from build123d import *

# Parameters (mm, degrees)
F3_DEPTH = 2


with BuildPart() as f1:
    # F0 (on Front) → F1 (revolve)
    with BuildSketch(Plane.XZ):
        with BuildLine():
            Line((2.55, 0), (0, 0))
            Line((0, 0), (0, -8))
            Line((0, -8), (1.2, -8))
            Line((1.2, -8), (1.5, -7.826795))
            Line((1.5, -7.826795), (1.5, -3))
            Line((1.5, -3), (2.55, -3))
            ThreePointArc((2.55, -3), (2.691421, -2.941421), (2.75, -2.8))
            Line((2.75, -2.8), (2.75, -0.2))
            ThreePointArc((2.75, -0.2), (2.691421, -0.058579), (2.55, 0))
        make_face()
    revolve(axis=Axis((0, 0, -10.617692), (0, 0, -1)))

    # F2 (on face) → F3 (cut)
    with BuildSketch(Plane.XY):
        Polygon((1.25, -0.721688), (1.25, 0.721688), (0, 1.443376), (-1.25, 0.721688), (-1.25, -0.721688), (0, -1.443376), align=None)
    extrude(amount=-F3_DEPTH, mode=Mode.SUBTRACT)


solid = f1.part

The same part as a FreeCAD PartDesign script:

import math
import FreeCAD as App
import Part
import Sketcher
Q = App.Units.Quantity


def add_polygon(sketch, points):
    """Adds a closed chain of lines whose ends are joined by coincident constraints."""
    first, n = sketch.GeometryCount, len(points)
    for a, b in zip(points, points[1:] + points[:1]):
        sketch.addGeometry(Part.LineSegment(App.Vector(*a, 0), App.Vector(*b, 0)), False)
    for i in range(n):
        sketch.addConstraint(Sketcher.Constraint("Coincident", first + i, 2, first + (i + 1) % n, 1))

doc = App.newDocument("Part")
body = doc.addObject("PartDesign::Body", "Body")

# Sketch on XZ plane
sketch1 = body.newObject("Sketcher::SketchObject", "Sketch")
sketch1.AttachmentSupport = (doc.getObject("XZ_Plane"), [""])
sketch1.MapMode = "FlatFace"
sketch1.addGeometry([
    Part.LineSegment(App.Vector(2.55, 0, 0), App.Vector(0, 0, 0)),  # 0
    Part.LineSegment(App.Vector(0, 0, 0), App.Vector(0, -8, 0)),  # 1
    Part.LineSegment(App.Vector(0, -8, 0), App.Vector(1.2, -8, 0)),  # 2
    Part.LineSegment(App.Vector(1.2, -8, 0), App.Vector(1.5, -7.83, 0)),  # 3
    Part.LineSegment(App.Vector(1.5, -7.83, 0), App.Vector(1.5, -3, 0)),  # 4
    Part.LineSegment(App.Vector(1.5, -3, 0), App.Vector(2.55, -3, 0)),  # 5
    Part.ArcOfCircle(Part.Circle(App.Vector(2.55, -2.8, 0), App.Vector(0, 0, 1), 0.2), math.radians(-90), math.radians(0)),  # 6
    Part.LineSegment(App.Vector(2.75, -2.8, 0), App.Vector(2.75, -0.2, 0)),  # 7
    Part.ArcOfCircle(Part.Circle(App.Vector(2.55, -0.2, 0), App.Vector(0, 0, 1), 0.2), math.radians(0), math.radians(90)),  # 8
], False)
sketch1.addConstraint([
    Sketcher.Constraint("Coincident", 0, 2, 1, 1),
    Sketcher.Constraint("Coincident", 1, 2, 2, 1),
    Sketcher.Constraint("Coincident", 2, 2, 3, 1),
    Sketcher.Constraint("Coincident", 3, 2, 4, 1),
    Sketcher.Constraint("Coincident", 4, 2, 5, 1),
    Sketcher.Constraint("Coincident", 5, 2, 6, 1),
    Sketcher.Constraint("Coincident", 6, 2, 7, 1),
    Sketcher.Constraint("Coincident", 7, 2, 8, 1),
    Sketcher.Constraint("Coincident", 8, 2, 0, 1),
    Sketcher.Constraint("Horizontal", 0),
    Sketcher.Constraint("Vertical", 1),
    Sketcher.Constraint("Horizontal", 2),
    Sketcher.Constraint("Vertical", 4),
    Sketcher.Constraint("Horizontal", 5),
    Sketcher.Constraint("Vertical", 7),
    Sketcher.Constraint("Coincident", 0, 2, -1, 1),
    Sketcher.Constraint("Equal", 6, 8),
    Sketcher.Constraint("Horizontal", 8, 3, 7, 2),
    Sketcher.Constraint("Vertical", 8, 3, 5, 2),
    Sketcher.Constraint("Vertical", 5, 2, 8, 2),
    Sketcher.Constraint("Radius", 6, 0.200001),
    Sketcher.Constraint("DistanceY", 1, 2, 1, 1, 8.0),
    Sketcher.Constraint("Angle", 3, Q("29.999988 deg")),
    Sketcher.Constraint("DistanceX", 2, 1, 2, 2, 1.2),
    Sketcher.Constraint("DistanceY", 7, 1, 7, 2, 2.6),
    Sketcher.Constraint("DistanceY", 4, 2, -1, 1, 3.0),
    Sketcher.Constraint("DistanceX", 0, 2, 0, 1, 2.55),
    Sketcher.Constraint("DistanceX", 5, 1, 5, 2, 1.05),
])
revolution = body.newObject("PartDesign::Revolution", "Revolution")
revolution.Profile = sketch1
revolution.ReferenceAxis = (sketch1, ["V_Axis"])
revolution.Angle = 360

# Sketch on XY plane
sketch2 = body.newObject("Sketcher::SketchObject", "Sketch001")
sketch2.AttachmentSupport = (doc.getObject("XY_Plane"), [""])
sketch2.MapMode = "FlatFace"
add_polygon(sketch2, [(1.2, -0.7), (1.2, 0.7), (0, 1.4), (-1.2, 0.7), (-1.2, -0.7), (0, -1.4)])  # lines 0-5
sketch2.addConstraint([
    Sketcher.Constraint("Vertical", 0),
    Sketcher.Constraint("Vertical", 3),
    Sketcher.Constraint("Symmetric", 0, 2, 3, 2, -1, 1),
    Sketcher.Constraint("Symmetric", 1, 2, 4, 2, -1, 1),
    Sketcher.Constraint("PointOnObject", 1, 2, -2),
    Sketcher.Constraint("Parallel", 2, 5),
    Sketcher.Constraint("Horizontal", 0, 2, 2, 2),
    Sketcher.Constraint("Angle", 1, Q("149.999994 deg")),
    Sketcher.Constraint("DistanceX", 2, 2, 0, 2, 2.5),
    Sketcher.Constraint("DistanceY", 0, 1, 0, 2, 1.443376),
])
pocket1 = body.newObject("PartDesign::Pocket", "Pocket")
pocket1.Profile = sketch2
pocket1.Length = 2

doc.recompute()
